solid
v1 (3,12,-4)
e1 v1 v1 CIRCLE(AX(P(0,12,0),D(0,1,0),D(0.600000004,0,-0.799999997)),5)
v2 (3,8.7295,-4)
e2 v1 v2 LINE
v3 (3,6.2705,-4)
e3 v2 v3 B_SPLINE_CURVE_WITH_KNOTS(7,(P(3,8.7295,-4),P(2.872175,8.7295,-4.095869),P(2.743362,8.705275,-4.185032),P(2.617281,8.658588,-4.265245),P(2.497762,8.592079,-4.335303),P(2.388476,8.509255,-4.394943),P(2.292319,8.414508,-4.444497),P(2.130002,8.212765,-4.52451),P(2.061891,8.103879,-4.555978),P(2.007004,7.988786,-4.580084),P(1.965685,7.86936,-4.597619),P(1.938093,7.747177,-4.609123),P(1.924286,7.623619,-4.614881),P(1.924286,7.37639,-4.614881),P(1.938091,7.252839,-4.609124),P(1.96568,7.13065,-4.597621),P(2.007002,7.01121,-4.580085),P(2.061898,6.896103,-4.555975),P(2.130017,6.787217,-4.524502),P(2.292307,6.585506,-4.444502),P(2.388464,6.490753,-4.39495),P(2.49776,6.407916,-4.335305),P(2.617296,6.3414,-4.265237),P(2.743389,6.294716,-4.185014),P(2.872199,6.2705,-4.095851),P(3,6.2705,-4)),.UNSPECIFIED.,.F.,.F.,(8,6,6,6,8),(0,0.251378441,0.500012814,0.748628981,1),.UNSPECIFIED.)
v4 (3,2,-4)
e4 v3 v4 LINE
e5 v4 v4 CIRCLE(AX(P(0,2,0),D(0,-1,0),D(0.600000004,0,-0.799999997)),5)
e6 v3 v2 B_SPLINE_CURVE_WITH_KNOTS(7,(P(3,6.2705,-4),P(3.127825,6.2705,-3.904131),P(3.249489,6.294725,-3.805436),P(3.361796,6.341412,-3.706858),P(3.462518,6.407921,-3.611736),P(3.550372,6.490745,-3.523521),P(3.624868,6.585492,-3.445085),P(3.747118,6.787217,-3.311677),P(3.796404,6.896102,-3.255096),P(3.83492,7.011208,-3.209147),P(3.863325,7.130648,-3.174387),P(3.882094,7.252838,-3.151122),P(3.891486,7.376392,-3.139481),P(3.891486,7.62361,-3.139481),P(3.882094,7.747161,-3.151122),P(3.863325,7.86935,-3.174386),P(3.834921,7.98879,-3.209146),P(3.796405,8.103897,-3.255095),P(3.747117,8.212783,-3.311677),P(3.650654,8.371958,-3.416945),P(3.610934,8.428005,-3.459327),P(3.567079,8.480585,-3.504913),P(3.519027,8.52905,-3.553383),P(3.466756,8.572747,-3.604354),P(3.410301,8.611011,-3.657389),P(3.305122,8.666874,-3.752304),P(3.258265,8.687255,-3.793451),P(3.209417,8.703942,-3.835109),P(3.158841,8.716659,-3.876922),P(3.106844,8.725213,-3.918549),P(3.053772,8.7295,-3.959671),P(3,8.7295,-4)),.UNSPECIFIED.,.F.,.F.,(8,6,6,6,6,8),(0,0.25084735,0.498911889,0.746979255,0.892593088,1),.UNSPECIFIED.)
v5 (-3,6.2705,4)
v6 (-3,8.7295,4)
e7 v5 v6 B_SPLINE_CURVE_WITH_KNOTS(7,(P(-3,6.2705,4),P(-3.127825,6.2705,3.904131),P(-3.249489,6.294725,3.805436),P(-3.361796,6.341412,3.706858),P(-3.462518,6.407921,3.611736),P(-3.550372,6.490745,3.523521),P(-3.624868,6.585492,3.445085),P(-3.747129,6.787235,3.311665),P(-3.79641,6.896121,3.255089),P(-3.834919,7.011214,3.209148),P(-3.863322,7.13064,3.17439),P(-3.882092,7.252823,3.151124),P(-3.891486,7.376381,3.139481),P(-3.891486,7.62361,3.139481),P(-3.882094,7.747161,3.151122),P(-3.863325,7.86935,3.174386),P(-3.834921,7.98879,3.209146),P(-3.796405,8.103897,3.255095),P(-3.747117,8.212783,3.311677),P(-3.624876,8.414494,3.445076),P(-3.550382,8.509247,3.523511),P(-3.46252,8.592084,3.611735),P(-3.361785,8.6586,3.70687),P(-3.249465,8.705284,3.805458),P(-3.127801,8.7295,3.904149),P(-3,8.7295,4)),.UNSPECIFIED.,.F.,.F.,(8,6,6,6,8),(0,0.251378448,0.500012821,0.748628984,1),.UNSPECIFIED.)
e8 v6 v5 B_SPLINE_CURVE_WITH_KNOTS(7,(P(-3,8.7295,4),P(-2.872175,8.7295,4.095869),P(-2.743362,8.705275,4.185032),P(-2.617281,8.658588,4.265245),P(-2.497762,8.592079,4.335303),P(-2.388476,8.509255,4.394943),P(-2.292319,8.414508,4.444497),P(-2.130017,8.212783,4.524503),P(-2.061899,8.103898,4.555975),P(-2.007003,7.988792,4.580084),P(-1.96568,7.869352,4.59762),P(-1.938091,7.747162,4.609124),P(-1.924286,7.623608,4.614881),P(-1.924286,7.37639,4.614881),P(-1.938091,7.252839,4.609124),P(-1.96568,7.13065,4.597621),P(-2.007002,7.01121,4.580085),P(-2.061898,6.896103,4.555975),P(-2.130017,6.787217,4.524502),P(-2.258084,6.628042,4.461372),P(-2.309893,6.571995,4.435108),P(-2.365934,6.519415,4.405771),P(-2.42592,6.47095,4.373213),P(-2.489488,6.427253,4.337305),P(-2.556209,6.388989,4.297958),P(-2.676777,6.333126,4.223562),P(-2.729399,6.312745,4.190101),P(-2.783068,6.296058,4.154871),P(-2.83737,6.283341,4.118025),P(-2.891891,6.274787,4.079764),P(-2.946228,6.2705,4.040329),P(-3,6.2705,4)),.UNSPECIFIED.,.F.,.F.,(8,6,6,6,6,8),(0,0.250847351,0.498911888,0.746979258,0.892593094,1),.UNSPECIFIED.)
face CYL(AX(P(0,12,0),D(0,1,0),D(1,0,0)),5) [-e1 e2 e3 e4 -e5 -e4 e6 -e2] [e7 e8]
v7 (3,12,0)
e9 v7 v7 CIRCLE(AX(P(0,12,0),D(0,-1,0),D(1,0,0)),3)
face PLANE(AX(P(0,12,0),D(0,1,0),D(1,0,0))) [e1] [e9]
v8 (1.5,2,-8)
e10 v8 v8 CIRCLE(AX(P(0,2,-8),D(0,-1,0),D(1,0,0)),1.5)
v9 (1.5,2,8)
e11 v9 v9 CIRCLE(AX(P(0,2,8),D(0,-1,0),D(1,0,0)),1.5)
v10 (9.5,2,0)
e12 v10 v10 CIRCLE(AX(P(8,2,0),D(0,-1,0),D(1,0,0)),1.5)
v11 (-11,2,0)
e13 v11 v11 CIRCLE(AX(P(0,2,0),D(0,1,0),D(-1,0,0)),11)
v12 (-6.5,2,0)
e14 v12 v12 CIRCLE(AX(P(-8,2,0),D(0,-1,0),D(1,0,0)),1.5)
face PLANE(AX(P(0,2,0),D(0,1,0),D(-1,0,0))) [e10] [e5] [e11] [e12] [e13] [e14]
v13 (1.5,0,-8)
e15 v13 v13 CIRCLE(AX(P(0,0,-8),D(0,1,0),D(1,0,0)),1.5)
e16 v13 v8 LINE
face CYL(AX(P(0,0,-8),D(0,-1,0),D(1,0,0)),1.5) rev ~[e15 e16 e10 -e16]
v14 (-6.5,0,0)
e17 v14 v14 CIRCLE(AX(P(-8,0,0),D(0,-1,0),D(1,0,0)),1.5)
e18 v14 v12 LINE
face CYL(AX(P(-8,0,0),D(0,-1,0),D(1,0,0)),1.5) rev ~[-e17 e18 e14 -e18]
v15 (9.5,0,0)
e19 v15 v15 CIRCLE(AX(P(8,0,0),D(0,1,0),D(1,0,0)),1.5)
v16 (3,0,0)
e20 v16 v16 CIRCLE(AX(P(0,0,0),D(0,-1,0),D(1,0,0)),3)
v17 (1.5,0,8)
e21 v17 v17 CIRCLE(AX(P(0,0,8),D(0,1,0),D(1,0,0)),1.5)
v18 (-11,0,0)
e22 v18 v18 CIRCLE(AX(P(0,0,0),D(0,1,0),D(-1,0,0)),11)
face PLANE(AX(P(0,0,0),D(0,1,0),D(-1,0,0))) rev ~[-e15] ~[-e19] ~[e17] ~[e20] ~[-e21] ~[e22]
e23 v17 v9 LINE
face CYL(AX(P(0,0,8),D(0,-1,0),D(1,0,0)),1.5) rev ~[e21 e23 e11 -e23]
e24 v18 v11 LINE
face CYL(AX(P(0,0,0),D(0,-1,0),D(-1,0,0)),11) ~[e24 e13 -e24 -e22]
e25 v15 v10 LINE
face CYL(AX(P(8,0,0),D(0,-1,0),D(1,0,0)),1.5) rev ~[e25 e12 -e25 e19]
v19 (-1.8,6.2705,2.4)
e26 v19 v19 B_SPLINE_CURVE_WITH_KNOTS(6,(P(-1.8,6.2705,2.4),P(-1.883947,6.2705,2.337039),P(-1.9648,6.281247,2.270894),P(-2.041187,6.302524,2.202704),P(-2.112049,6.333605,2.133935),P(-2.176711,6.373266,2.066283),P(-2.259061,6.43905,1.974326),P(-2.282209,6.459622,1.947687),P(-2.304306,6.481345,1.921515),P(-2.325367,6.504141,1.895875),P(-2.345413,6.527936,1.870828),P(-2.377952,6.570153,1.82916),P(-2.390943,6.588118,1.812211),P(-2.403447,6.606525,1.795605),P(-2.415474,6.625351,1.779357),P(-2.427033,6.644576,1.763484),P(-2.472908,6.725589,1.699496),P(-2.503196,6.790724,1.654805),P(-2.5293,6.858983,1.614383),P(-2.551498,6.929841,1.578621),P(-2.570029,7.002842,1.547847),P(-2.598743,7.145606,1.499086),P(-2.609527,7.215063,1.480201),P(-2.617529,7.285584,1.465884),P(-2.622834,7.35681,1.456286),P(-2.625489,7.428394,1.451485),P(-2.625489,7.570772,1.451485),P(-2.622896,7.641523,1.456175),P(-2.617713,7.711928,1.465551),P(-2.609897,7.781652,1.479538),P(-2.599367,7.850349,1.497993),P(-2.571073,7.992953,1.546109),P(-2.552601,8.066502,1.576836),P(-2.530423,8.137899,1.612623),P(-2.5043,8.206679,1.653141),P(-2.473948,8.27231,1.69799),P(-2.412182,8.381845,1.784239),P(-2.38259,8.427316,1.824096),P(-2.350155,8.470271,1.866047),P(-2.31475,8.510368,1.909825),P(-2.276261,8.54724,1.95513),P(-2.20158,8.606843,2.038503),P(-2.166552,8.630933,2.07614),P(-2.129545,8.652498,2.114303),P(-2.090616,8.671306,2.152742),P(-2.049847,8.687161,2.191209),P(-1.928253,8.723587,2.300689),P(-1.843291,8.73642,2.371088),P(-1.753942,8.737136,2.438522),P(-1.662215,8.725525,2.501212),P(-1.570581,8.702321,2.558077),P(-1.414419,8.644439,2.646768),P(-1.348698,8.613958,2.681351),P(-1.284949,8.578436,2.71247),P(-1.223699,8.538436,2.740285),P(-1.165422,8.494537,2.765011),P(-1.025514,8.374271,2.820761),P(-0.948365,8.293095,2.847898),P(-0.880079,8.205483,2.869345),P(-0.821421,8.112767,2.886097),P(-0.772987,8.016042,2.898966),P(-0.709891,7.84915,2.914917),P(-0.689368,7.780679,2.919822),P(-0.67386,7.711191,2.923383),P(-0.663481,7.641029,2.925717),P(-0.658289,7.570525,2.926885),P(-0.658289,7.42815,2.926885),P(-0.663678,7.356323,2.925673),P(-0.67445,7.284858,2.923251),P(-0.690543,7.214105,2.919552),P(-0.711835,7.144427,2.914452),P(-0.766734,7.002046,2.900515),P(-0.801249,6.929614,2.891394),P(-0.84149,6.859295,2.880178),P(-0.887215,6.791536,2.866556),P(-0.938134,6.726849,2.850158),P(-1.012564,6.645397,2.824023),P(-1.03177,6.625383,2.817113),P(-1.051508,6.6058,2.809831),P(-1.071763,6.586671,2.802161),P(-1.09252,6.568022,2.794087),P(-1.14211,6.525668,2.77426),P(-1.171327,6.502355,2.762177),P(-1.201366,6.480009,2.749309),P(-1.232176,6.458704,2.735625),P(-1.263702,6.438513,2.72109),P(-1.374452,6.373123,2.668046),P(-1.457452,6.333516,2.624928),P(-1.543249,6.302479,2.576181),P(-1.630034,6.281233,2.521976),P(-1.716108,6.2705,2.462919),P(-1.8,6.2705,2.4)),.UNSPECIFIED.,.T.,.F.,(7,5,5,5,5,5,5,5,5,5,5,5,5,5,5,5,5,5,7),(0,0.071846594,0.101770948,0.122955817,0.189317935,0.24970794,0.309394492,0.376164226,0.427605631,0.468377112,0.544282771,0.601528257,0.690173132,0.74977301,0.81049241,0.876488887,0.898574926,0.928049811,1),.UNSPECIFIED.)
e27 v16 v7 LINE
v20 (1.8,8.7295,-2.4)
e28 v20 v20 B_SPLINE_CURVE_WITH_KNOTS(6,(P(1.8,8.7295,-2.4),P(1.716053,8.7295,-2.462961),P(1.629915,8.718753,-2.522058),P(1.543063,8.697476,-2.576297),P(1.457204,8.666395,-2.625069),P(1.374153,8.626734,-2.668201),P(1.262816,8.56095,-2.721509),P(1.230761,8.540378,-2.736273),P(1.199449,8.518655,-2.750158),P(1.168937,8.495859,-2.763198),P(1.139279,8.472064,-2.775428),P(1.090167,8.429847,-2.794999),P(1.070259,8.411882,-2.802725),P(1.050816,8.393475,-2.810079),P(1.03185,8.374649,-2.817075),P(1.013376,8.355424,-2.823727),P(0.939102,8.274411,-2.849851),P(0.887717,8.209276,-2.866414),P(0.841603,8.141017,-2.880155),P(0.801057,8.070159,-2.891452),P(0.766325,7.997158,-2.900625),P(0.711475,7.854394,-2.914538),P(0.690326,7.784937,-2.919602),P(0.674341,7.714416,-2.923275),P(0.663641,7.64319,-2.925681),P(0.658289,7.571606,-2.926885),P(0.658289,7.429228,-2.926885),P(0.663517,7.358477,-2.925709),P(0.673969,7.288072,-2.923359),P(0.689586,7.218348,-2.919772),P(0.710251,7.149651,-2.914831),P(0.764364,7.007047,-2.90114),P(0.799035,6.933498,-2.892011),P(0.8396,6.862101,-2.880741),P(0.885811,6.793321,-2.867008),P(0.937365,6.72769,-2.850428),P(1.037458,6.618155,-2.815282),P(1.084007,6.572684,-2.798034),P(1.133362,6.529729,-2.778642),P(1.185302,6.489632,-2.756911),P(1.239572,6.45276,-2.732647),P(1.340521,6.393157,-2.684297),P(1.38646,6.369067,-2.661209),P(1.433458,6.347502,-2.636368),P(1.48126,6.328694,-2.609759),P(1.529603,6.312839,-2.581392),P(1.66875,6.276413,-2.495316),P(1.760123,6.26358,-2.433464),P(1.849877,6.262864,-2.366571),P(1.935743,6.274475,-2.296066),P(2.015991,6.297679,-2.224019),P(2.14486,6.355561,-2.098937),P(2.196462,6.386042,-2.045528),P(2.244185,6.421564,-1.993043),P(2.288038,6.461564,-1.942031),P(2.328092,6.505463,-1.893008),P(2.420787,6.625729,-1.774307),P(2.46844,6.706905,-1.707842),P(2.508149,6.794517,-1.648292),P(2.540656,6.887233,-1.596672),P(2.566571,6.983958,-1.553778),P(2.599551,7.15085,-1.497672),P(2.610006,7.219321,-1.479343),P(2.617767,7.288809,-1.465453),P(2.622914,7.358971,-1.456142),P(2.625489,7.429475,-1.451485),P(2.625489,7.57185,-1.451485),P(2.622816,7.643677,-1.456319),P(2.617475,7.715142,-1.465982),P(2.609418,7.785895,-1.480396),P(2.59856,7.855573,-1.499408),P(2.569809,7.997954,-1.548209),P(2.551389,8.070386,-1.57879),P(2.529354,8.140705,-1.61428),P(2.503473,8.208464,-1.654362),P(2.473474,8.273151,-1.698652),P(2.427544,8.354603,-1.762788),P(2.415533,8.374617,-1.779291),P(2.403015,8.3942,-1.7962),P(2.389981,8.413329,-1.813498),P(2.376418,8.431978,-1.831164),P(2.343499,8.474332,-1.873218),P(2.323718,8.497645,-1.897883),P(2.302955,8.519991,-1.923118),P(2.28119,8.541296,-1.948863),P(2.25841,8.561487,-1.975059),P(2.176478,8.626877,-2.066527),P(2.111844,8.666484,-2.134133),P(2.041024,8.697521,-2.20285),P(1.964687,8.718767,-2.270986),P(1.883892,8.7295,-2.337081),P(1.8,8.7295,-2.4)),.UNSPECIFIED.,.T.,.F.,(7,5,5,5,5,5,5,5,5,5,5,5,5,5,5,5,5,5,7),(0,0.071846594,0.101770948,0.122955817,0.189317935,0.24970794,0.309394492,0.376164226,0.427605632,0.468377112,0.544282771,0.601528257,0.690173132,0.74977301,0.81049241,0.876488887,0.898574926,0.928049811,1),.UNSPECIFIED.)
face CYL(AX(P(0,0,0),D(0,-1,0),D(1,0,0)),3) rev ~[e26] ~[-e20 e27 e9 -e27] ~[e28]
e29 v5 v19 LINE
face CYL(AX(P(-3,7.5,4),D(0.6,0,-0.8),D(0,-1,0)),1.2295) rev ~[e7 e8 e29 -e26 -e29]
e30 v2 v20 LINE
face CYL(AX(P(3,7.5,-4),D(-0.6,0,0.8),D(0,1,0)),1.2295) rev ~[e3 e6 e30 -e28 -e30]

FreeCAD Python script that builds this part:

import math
import FreeCAD as App
import Part
import Sketcher


def add_polygon(sketch, points):
    """Adds a closed chain of lines whose ends are joined by coincident constraints."""
    first, n = sketch.GeometryCount, len(points)
    for a, b in zip(points, points[1:] + points[:1]):
        sketch.addGeometry(Part.LineSegment(App.Vector(*a, 0), App.Vector(*b, 0)), False)
    for i in range(n):
        sketch.addConstraint(Sketcher.Constraint("Coincident", first + i, 2, first + (i + 1) % n, 1))

doc = App.newDocument("Part")
body = doc.addObject("PartDesign::Body", "Body")

# Sketch on XZ plane
sketch1 = doc.addObject("Sketcher::SketchObject", "Sketch")
body.addObject(sketch1)
sketch1.AttachmentSupport = (doc.XZ_Plane, [""])
sketch1.MapMode = "FlatFace"
sketch1.addGeometry(Part.Circle(App.Vector(0, 0, 0), App.Vector(0, 0, 1), 11), False)
sketch1.addConstraint([
    Sketcher.Constraint("Coincident", 0, 3, -1, 1),
    Sketcher.Constraint("Diameter", 0, 22.0),
])
pad1 = doc.addObject("PartDesign::Pad", "Pad")
body.addObject(pad1)
pad1.Profile = sketch1
pad1.Length = 2
pad1.Reversed = True

# Sketch on XZ plane
sketch2 = doc.addObject("Sketcher::SketchObject", "Sketch001")
body.addObject(sketch2)
sketch2.AttachmentSupport = (doc.XZ_Plane, [""])
sketch2.MapMode = "FlatFace"
sketch2.AttachmentOffset = App.Placement(App.Vector(0, 0, -2), App.Rotation())
add_polygon(sketch2, [(7, -1), (-1, -7), (-7, 1), (1, 7)])  # lines 0-3
sketch2.addConstraint([
    Sketcher.Constraint("Symmetric", 0, 2, 2, 2, -1, 1),
    Sketcher.Constraint("Symmetric", 1, 2, 3, 2, -1, 1),
    Sketcher.Constraint("Perpendicular", 0, 1),
    Sketcher.Constraint("Equal", 0, 1),
    Sketcher.Constraint("Distance", 0, 10.0),
    Sketcher.Constraint("DistanceX", 0, 2, -1, 1, 1.0),
])
pad2 = doc.addObject("PartDesign::Pad", "Pad001")
body.addObject(pad2)
pad2.Profile = sketch2
pad2.Length = 10
pad2.Reversed = True

# Sketch on XZ plane
sketch3 = doc.addObject("Sketcher::SketchObject", "Sketch002")
body.addObject(sketch3)
sketch3.AttachmentSupport = (doc.XZ_Plane, [""])
sketch3.MapMode = "FlatFace"
sketch3.addGeometry([
    Part.Circle(App.Vector(0, -8, 0), App.Vector(0, 0, 1), 1.5),
    Part.Circle(App.Vector(-8, 0, 0), App.Vector(0, 0, 1), 1.5),
    Part.Circle(App.Vector(0, 8, 0), App.Vector(0, 0, 1), 1.5),
    Part.Circle(App.Vector(8, 0, 0), App.Vector(0, 0, 1), 1.5),
], False)
sketch3.addConstraint([
    Sketcher.Constraint("Equal", 0, 1),
    Sketcher.Constraint("Equal", 1, 2),
    Sketcher.Constraint("Equal", 2, 3),
    Sketcher.Constraint("Symmetric", 0, 3, 2, 3, -1, 1),
    Sketcher.Constraint("Symmetric", 1, 3, 3, 3, -1, 1),
    Sketcher.Constraint("PointOnObject", 0, 3, -2),
    Sketcher.Constraint("PointOnObject", 1, 3, -1),
    Sketcher.Constraint("Diameter", 0, 3.0),
    Sketcher.Constraint("DistanceY", 0, 3, 2, 3, 16.0),
    Sketcher.Constraint("DistanceX", 1, 3, 3, 3, 16.0),
])
pocket1 = doc.addObject("PartDesign::Pocket", "Pocket")
body.addObject(pocket1)
pocket1.Profile = sketch3
pocket1.Length = 2

# Sketch on XZ plane
sketch4 = doc.addObject("Sketcher::SketchObject", "Sketch003")
body.addObject(sketch4)
sketch4.AttachmentSupport = (doc.XZ_Plane, [""])
sketch4.MapMode = "FlatFace"
sketch4.addGeometry(Part.Circle(App.Vector(0, 0, 0), App.Vector(0, 0, 1), 3), False)
sketch4.addConstraint([
    Sketcher.Constraint("Coincident", 0, 3, -1, 1),
    Sketcher.Constraint("Diameter", 0, 6.0),
])
pocket2 = doc.addObject("PartDesign::Pocket", "Pocket001")
body.addObject(pocket2)
pocket2.Profile = sketch4
pocket2.Length = 12

# Sketch on an angled plane
sketch5 = doc.addObject("Sketcher::SketchObject", "Sketch004")
body.addObject(sketch5)
sketch5.Placement = App.Placement(App.Vector(-3, 0, 4), App.Rotation(App.Vector(0.8, 0, 0.6), App.Vector(0, 1, 0), App.Vector(-0.6, 0, 0.8), "ZXY"))
sketch5.addGeometry(Part.Circle(App.Vector(0, 7.5, 0), App.Vector(0, 0, 1), 1.2), False)
sketch5.addConstraint([
    Sketcher.Constraint("PointOnObject", 0, 3, -2),
    Sketcher.Constraint("Diameter", 0, 2.459),
    Sketcher.Constraint("DistanceY", -1, 1, 0, 3, 7.5),
])
doc.recompute()
hole = doc.addObject("PartDesign::Hole", "Hole")
body.addObject(hole)
hole.Profile = sketch5
hole.ThreadType = "None"
hole.Diameter = 2.459
hole.DepthType = "Dimension"
hole.Depth = 6
hole.DrillPoint = "Angled"
hole.DrillPointAngle = 118

# Sketch on an angled plane
sketch6 = doc.addObject("Sketcher::SketchObject", "Sketch005")
body.addObject(sketch6)
sketch6.Placement = App.Placement(App.Vector(3, 0, -4), App.Rotation(App.Vector(-0.8, 0, -0.6), App.Vector(0, 1, 0), App.Vector(0.6, 0, -0.8), "ZXY"))
sketch6.addGeometry(Part.Circle(App.Vector(0, 7.5, 0), App.Vector(0, 0, 1), 1.2), False)
sketch6.addConstraint([
    Sketcher.Constraint("PointOnObject", 0, 3, -2),
    Sketcher.Constraint("Diameter", 0, 2.459),
    Sketcher.Constraint("DistanceY", -1, 1, 0, 3, 7.5),
])
doc.recompute()
hole2 = doc.addObject("PartDesign::Hole", "Hole001")
body.addObject(hole2)
hole2.Profile = sketch6
hole2.ThreadType = "None"
hole2.Diameter = 2.459
hole2.DepthType = "Dimension"
hole2.Depth = 6
hole2.DrillPoint = "Angled"
hole2.DrillPointAngle = 118

# Sketch on XZ plane
sketch7 = doc.addObject("Sketcher::SketchObject", "Sketch006")
body.addObject(sketch7)
sketch7.AttachmentSupport = (doc.XZ_Plane, [""])
sketch7.MapMode = "FlatFace"
sketch7.AttachmentOffset = App.Placement(App.Vector(0, 0, -12), App.Rotation())
sketch7.addGeometry([
    Part.ArcOfCircle(Part.Circle(App.Vector(0, 0, 0), App.Vector(0, 0, 1), 5), math.radians(-53), math.radians(37)),  # 0
    Part.LineSegment(App.Vector(4, 3, 0), App.Vector(7, -1, 0)),  # 1
    Part.LineSegment(App.Vector(7, -1, 0), App.Vector(3, -4, 0)),  # 2
    Part.ArcOfCircle(Part.Circle(App.Vector(0, 0, 0), App.Vector(0, 0, 1), 5), math.radians(-143), math.radians(-53)),  # 3
    Part.LineSegment(App.Vector(3, -4, 0), App.Vector(-1, -7, 0)),  # 4
    Part.LineSegment(App.Vector(-1, -7, 0), App.Vector(-4, -3, 0)),  # 5
    Part.LineSegment(App.Vector(1, 7, 0), App.Vector(4, 3, 0)),  # 6
    Part.ArcOfCircle(Part.Circle(App.Vector(0, 0, 0), App.Vector(0, 0, 1), 5), math.radians(37), math.radians(127)),  # 7
    Part.LineSegment(App.Vector(-3, 4, 0), App.Vector(1, 7, 0)),  # 8
    Part.ArcOfCircle(Part.Circle(App.Vector(0, 0, 0), App.Vector(0, 0, 1), 5), math.radians(127), math.radians(217)),  # 9
    Part.LineSegment(App.Vector(-4, -3, 0), App.Vector(-7, 1, 0)),  # 10
    Part.LineSegment(App.Vector(-7, 1, 0), App.Vector(-3, 4, 0)),  # 11
], False)
sketch7.addConstraint([
    Sketcher.Constraint("Tangent", 0, 2, 1, 1),
    Sketcher.Constraint("Coincident", 1, 2, 2, 1),
    Sketcher.Constraint("Tangent", 2, 2, 0, 1),
    Sketcher.Constraint("Tangent", 3, 2, 4, 1),
    Sketcher.Constraint("Coincident", 4, 2, 5, 1),
    Sketcher.Constraint("Tangent", 5, 2, 3, 1),
    Sketcher.Constraint("Tangent", 6, 2, 7, 1),
    Sketcher.Constraint("Tangent", 7, 2, 8, 1),
    Sketcher.Constraint("Coincident", 8, 2, 6, 1),
    Sketcher.Constraint("Tangent", 9, 2, 10, 1),
    Sketcher.Constraint("Coincident", 10, 2, 11, 1),
    Sketcher.Constraint("Tangent", 11, 2, 9, 1),
    Sketcher.Constraint("Coincident", 0, 3, -1, 1),
    Sketcher.Constraint("Coincident", 3, 3, -1, 1),
    Sketcher.Constraint("Coincident", 7, 3, -1, 1),
    Sketcher.Constraint("Coincident", 9, 3, -1, 1),
    Sketcher.Constraint("Coincident", 3, 2, 2, 2),
    Sketcher.Constraint("Coincident", 6, 2, 0, 2),
    Sketcher.Constraint("Coincident", 9, 2, 5, 2),
    Sketcher.Constraint("Symmetric", 4, 2, 8, 2, -1, 1),
    Sketcher.Constraint("Perpendicular", 1, 2),
    Sketcher.Constraint("Perpendicular", 10, 11),
    Sketcher.Constraint("Radius", 0, 5.0),
    Sketcher.Constraint("DistanceX", -1, 1, 0, 2, 4.0),
])
pocket3 = doc.addObject("PartDesign::Pocket", "Pocket002")
body.addObject(pocket3)
pocket3.Profile = sketch7
pocket3.Length = 10
pocket3.Reversed = True

doc.recompute()
